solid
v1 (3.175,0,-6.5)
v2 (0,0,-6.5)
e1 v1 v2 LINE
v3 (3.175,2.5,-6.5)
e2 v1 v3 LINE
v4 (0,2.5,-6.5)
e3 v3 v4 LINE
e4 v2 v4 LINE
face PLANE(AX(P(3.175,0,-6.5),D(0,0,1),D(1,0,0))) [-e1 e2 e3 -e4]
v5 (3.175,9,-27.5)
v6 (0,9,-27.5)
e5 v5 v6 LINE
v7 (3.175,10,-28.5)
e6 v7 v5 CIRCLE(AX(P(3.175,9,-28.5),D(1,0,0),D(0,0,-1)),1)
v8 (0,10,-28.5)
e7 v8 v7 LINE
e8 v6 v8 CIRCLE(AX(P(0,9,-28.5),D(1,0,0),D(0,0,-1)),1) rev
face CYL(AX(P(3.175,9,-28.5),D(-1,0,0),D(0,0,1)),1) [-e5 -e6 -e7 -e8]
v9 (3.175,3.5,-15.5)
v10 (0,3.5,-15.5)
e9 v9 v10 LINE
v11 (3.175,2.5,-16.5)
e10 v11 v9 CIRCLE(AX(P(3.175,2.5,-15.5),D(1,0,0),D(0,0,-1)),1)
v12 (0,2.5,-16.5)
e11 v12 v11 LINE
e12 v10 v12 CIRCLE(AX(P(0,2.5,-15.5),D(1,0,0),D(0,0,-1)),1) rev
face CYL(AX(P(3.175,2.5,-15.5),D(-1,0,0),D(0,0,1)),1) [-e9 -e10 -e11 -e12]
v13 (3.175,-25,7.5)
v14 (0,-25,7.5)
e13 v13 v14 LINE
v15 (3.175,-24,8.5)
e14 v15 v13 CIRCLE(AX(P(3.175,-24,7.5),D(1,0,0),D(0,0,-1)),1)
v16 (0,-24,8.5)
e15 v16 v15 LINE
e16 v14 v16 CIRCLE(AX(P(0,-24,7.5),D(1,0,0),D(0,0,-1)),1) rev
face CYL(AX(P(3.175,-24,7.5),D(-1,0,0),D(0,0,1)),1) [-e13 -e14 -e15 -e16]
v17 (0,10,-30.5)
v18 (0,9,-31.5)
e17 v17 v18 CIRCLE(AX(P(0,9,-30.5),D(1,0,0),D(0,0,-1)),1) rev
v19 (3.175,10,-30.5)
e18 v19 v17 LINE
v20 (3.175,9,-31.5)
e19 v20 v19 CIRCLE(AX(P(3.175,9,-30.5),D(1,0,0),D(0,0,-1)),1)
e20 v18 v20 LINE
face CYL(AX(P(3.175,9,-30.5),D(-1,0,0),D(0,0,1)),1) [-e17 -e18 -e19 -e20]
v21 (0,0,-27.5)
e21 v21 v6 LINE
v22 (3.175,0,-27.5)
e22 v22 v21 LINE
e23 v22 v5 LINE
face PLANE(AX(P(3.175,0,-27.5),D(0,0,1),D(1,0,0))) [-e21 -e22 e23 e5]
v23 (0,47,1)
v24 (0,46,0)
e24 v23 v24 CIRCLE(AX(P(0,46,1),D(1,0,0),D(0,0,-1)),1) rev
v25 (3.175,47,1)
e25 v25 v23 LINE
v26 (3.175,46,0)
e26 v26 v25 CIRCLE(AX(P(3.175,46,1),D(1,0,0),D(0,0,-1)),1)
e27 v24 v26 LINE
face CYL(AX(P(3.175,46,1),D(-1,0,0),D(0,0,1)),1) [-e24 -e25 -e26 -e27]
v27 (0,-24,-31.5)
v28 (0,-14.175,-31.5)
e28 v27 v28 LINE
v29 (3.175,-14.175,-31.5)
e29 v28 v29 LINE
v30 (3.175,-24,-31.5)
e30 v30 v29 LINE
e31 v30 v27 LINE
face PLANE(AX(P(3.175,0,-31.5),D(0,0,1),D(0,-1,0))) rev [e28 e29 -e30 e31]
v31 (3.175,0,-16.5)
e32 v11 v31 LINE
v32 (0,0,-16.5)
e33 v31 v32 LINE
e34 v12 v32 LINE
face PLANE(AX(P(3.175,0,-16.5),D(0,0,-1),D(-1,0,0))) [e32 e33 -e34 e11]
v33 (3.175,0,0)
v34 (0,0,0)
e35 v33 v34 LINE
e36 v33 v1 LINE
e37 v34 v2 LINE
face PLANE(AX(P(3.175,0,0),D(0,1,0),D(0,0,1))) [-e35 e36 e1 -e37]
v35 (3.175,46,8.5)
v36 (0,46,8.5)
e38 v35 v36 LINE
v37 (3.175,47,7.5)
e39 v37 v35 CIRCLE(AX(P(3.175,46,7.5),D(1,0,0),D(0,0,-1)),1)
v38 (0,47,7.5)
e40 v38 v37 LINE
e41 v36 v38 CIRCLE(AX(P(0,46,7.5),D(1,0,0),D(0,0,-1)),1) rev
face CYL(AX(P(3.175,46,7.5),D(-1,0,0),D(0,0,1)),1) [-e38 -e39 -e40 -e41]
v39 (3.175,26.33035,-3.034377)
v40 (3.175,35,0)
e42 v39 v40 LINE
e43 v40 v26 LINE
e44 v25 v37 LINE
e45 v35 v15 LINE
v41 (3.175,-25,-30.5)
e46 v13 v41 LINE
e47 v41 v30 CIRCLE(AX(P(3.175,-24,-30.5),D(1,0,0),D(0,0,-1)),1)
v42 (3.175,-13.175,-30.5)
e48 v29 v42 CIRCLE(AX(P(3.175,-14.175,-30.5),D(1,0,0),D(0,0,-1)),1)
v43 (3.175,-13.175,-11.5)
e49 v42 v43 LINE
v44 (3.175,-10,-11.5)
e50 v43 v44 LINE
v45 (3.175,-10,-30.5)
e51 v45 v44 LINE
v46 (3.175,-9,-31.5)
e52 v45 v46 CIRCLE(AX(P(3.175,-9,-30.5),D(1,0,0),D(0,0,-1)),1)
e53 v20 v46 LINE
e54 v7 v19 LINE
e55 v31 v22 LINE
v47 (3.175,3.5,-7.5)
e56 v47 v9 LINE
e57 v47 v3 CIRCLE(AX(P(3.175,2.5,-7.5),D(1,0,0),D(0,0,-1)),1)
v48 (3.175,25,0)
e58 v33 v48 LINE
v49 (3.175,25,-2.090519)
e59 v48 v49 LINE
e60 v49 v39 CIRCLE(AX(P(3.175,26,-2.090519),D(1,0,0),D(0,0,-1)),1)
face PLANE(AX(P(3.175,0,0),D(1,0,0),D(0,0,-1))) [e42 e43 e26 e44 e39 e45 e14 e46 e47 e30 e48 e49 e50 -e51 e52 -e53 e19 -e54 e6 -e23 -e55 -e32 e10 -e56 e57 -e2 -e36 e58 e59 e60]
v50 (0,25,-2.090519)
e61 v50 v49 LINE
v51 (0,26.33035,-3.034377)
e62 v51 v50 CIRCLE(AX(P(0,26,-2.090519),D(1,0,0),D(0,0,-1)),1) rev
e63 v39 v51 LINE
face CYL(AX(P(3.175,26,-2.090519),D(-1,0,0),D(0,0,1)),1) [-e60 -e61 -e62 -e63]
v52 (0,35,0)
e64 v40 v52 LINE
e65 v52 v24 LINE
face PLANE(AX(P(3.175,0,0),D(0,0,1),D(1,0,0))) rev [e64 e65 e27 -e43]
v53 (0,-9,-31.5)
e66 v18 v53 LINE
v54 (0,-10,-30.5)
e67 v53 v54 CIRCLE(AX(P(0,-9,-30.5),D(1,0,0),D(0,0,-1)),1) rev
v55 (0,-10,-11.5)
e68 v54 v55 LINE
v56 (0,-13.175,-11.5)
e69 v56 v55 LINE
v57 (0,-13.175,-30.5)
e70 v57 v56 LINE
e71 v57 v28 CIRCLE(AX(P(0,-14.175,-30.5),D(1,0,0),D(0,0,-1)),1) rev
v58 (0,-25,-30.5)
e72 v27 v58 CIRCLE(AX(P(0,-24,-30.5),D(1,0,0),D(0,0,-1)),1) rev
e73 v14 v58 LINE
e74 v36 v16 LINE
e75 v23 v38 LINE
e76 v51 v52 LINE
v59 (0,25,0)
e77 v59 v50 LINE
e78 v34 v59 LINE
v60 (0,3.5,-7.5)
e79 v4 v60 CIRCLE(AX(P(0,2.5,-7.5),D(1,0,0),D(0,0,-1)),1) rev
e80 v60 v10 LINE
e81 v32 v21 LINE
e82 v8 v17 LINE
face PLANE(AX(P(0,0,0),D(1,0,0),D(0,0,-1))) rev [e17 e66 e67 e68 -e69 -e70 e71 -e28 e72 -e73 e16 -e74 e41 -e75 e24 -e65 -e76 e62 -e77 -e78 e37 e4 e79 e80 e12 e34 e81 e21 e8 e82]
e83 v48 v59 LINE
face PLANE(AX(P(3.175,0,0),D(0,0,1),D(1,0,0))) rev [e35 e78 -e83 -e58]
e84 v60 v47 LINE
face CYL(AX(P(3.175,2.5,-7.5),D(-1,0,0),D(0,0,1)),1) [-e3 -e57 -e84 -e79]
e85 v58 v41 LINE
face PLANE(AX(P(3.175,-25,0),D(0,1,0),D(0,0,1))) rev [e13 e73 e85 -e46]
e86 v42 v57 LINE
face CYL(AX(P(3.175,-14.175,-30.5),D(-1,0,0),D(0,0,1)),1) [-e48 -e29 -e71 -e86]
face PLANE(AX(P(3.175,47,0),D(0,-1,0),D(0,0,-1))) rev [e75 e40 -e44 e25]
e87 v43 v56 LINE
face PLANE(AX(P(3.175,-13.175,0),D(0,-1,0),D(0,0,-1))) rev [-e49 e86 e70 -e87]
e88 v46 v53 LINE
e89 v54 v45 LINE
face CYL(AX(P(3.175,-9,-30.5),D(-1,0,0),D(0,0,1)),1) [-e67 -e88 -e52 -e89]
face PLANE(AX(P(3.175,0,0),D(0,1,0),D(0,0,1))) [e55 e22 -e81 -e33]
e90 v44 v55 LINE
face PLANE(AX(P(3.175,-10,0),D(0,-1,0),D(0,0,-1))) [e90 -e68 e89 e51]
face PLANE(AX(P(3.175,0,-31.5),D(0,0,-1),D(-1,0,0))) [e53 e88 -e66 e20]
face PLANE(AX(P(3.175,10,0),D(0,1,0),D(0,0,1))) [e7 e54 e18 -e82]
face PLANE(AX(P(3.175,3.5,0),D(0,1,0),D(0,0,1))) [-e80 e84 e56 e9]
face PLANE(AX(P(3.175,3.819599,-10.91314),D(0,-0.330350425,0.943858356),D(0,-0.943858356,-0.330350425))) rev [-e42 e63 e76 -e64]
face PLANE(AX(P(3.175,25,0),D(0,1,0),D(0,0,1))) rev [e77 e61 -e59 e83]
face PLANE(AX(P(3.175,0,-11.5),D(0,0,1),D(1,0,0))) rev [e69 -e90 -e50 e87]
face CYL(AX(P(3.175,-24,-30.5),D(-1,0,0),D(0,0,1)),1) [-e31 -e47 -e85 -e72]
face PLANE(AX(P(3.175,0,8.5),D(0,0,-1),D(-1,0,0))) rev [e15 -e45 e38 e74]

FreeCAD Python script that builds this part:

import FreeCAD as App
import Part
import Sketcher
from FreeCAD import Vector
Q = App.Units.Quantity


def edges_at(feature, points):
    """Names of the edges that pass closest to the given points."""
    edges = feature.Shape.Edges
    near = lambda p: min(range(len(edges)), key=lambda i: edges[i].distToShape(Part.Vertex(*p))[0])
    return sorted({f"Edge{near(p) + 1}" for p in points})


def add_polygon(sketch, points):
    """Adds a closed chain of lines whose ends are joined by coincident constraints."""
    first, n = sketch.GeometryCount, len(points)
    for a, b in zip(points, points[1:] + points[:1]):
        sketch.addGeometry(Part.LineSegment(App.Vector(*a, 0), App.Vector(*b, 0)), False)
    for i in range(n):
        sketch.addConstraint(Sketcher.Constraint("Coincident", first + i, 2, first + (i + 1) % n, 1))

doc = App.newDocument("Part")
body = doc.addObject("PartDesign::Body", "Body")

sketch1 = body.newObject("Sketcher::SketchObject", "Sketch")
sketch1.AttachmentSupport = (doc.getObject("YZ_Plane"), [""])
sketch1.MapMode = "FlatFace"
add_polygon(sketch1, [(47, 0), (47, 8.5), (-25, 8.5), (-25, -31.5), (-13.175, -31.5), (-13.175, -11.5), (-10, -11.5), (-10, -31.5), (10, -31.5), (10, -27.5), (0, -27.5), (0, -16.5), (3.5, -16.5), (3.5, -6.5), (0, -6.5), (0, 0), (25, 0), (25, -3.5), (35, 0)])
sketch1.addConstraint(Sketcher.Constraint("Vertical", 0))
sketch1.addConstraint(Sketcher.Constraint("Horizontal", 1))
sketch1.addConstraint(Sketcher.Constraint("Vertical", 2))
sketch1.addConstraint(Sketcher.Constraint("Horizontal", 3))
sketch1.addConstraint(Sketcher.Constraint("Vertical", 4))
sketch1.addConstraint(Sketcher.Constraint("Horizontal", 5))
sketch1.addConstraint(Sketcher.Constraint("Vertical", 6))
sketch1.addConstraint(Sketcher.Constraint("Horizontal", 7))
sketch1.addConstraint(Sketcher.Constraint("Vertical", 8))
sketch1.addConstraint(Sketcher.Constraint("Horizontal", 9))
sketch1.addConstraint(Sketcher.Constraint("Vertical", 10))
sketch1.addConstraint(Sketcher.Constraint("Horizontal", 11))
sketch1.addConstraint(Sketcher.Constraint("Vertical", 12))
sketch1.addConstraint(Sketcher.Constraint("Horizontal", 13))
sketch1.addConstraint(Sketcher.Constraint("Vertical", 14))
sketch1.addConstraint(Sketcher.Constraint("Horizontal", 15))
sketch1.addConstraint(Sketcher.Constraint("Vertical", 16))
sketch1.addConstraint(Sketcher.Constraint("Horizontal", 18))
sketch1.addConstraint(Sketcher.Constraint("Coincident", 14, 2, -1, 1))
sketch1.addConstraint(Sketcher.Constraint("PointOnObject", 9, 2, -2))
sketch1.addConstraint(Sketcher.Constraint("PointOnObject", 17, 2, -1))
sketch1.addConstraint(Sketcher.Constraint("Horizontal", 3, 2, 6, 2))
sketch1.addConstraint(Sketcher.Constraint("Equal", 7, 4))
sketch1.addConstraint(Sketcher.Constraint("Equal", 9, 12))
sketch1.addConstraint(Sketcher.Constraint("Equal", 13, 16))
sketch1.addConstraint(Sketcher.Constraint("DistanceX", 1, 2, 1, 1, Q("72 mm")))
sketch1.addConstraint(Sketcher.Constraint("DistanceX", 7, 1, 7, 2, Q("20 mm")))
sketch1.addConstraint(Sketcher.Constraint("DistanceX", 9, 2, 9, 1, Q("10 mm")))
sketch1.addConstraint(Sketcher.Constraint("DistanceX", 15, 1, 15, 2, Q("25 mm")))
sketch1.addConstraint(Sketcher.Constraint("DistanceX", 18, 1, 18, 2, Q("12 mm")))
sketch1.addConstraint(Sketcher.Constraint("DistanceY", 2, 2, 2, 1, Q("40 mm")))
sketch1.addConstraint(Sketcher.Constraint("DistanceY", 8, 1, 8, 2, Q("4 mm")))
sketch1.addConstraint(Sketcher.Constraint("DistanceY", 10, 1, 10, 2, Q("11 mm")))
sketch1.addConstraint(Sketcher.Constraint("DistanceX", 11, 1, 11, 2, Q("3.5 mm")))
sketch1.addConstraint(Sketcher.Constraint("DistanceY", 0, 1, 0, 2, Q("8.5 mm")))
sketch1.addConstraint(Sketcher.Constraint("DistanceX", -1, 1, 0, 2, Q("47 mm")))
sketch1.addConstraint(Sketcher.Constraint("DistanceX", 3, 1, 3, 2, Q("11.825 mm")))
pad1 = body.newObject("PartDesign::Pad", "Pad")
pad1.Profile = sketch1
pad1.Length = 3.175
doc.recompute()

fillet = body.newObject("PartDesign::Fillet", "Fillet")
fillet.Base = (pad1, edges_at(pad1, [
    (1.587, 47, 0),
    (1.587, 25, -3.5),
    (1.587, 3.5, -6.5),
    (1.587, 3.5, -16.5),
    (1.587, 10, -27.5),
    (1.587, 10, -31.5),
    (1.587, -10, -31.5),
    (1.587, -13.175, -31.5),
    (1.587, -25, -31.5),
    (1.587, -25, 8.5),
    (1.587, 47, 8.5),
]))
fillet.Radius = 1

doc.recompute()
